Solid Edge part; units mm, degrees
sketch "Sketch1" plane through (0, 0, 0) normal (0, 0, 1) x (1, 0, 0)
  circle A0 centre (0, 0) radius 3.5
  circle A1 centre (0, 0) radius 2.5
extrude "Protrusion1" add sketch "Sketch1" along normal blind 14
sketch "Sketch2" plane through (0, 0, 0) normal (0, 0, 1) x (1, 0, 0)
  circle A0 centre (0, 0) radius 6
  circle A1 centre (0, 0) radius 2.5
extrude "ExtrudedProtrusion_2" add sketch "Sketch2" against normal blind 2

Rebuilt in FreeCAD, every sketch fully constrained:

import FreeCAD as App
import Part
import Sketcher

doc = App.newDocument("Part")
params = doc.addObject("Spreadsheet::Sheet", "Params")
for row, (alias, value) in enumerate([
    ("sketch1_diameter", "7 mm"),
    ("sketch1_diameter2", "5 mm"),
    ("pad1_length", "14 mm"),
    ("sketch2_diameter", "12 mm"),
    ("sketch2_diameter2", "5 mm"),
    ("pad2_length", "2 mm"),
], start=1):
    params.set(f"A{row}", alias)
    params.set(f"B{row}", "=" + value)
    params.setAlias(f"B{row}", alias)

body = doc.addObject("PartDesign::Body", "Body")

# Sketch on XY plane
sketch1 = doc.addObject("Sketcher::SketchObject", "Sketch")
body.addObject(sketch1)
sketch1.AttachmentSupport = (doc.XY_Plane, [""])
sketch1.MapMode = "FlatFace"
sketch1.addGeometry([
    Part.Circle(App.Vector(0, 0, 0), App.Vector(0, 0, 1), 3.5),
    Part.Circle(App.Vector(0, 0, 0), App.Vector(0, 0, 1), 2.5),
], False)
sketch1.addConstraint([
    Sketcher.Constraint("Coincident", 0, 3, -1, 1),
    Sketcher.Constraint("Coincident", 1, 3, -1, 1),
    Sketcher.Constraint("Diameter", 0, 7.0),
    Sketcher.Constraint("Diameter", 1, 5.0),
])
sketch1.setExpression("Constraints[2]", "Params.sketch1_diameter")
sketch1.setExpression("Constraints[3]", "Params.sketch1_diameter2")
pad1 = doc.addObject("PartDesign::Pad", "Pad")
body.addObject(pad1)
pad1.Profile = sketch1
pad1.setExpression("Length", "Params.pad1_length")

# Sketch on XY plane
sketch2 = doc.addObject("Sketcher::SketchObject", "Sketch001")
body.addObject(sketch2)
sketch2.AttachmentSupport = (doc.XY_Plane, [""])
sketch2.MapMode = "FlatFace"
sketch2.addGeometry([
    Part.Circle(App.Vector(0, 0, 0), App.Vector(0, 0, 1), 6),
    Part.Circle(App.Vector(0, 0, 0), App.Vector(0, 0, 1), 2.5),
], False)
sketch2.addConstraint([
    Sketcher.Constraint("Coincident", 0, 3, -1, 1),
    Sketcher.Constraint("Coincident", 1, 3, -1, 1),
    Sketcher.Constraint("Diameter", 0, 12.0),
    Sketcher.Constraint("Diameter", 1, 5.0),
])
sketch2.setExpression("Constraints[2]", "Params.sketch2_diameter")
sketch2.setExpression("Constraints[3]", "Params.sketch2_diameter2")
pad2 = doc.addObject("PartDesign::Pad", "Pad001")
body.addObject(pad2)
pad2.Profile = sketch2
pad2.setExpression("Length", "Params.pad2_length")
pad2.Reversed = True

doc.recompute()
